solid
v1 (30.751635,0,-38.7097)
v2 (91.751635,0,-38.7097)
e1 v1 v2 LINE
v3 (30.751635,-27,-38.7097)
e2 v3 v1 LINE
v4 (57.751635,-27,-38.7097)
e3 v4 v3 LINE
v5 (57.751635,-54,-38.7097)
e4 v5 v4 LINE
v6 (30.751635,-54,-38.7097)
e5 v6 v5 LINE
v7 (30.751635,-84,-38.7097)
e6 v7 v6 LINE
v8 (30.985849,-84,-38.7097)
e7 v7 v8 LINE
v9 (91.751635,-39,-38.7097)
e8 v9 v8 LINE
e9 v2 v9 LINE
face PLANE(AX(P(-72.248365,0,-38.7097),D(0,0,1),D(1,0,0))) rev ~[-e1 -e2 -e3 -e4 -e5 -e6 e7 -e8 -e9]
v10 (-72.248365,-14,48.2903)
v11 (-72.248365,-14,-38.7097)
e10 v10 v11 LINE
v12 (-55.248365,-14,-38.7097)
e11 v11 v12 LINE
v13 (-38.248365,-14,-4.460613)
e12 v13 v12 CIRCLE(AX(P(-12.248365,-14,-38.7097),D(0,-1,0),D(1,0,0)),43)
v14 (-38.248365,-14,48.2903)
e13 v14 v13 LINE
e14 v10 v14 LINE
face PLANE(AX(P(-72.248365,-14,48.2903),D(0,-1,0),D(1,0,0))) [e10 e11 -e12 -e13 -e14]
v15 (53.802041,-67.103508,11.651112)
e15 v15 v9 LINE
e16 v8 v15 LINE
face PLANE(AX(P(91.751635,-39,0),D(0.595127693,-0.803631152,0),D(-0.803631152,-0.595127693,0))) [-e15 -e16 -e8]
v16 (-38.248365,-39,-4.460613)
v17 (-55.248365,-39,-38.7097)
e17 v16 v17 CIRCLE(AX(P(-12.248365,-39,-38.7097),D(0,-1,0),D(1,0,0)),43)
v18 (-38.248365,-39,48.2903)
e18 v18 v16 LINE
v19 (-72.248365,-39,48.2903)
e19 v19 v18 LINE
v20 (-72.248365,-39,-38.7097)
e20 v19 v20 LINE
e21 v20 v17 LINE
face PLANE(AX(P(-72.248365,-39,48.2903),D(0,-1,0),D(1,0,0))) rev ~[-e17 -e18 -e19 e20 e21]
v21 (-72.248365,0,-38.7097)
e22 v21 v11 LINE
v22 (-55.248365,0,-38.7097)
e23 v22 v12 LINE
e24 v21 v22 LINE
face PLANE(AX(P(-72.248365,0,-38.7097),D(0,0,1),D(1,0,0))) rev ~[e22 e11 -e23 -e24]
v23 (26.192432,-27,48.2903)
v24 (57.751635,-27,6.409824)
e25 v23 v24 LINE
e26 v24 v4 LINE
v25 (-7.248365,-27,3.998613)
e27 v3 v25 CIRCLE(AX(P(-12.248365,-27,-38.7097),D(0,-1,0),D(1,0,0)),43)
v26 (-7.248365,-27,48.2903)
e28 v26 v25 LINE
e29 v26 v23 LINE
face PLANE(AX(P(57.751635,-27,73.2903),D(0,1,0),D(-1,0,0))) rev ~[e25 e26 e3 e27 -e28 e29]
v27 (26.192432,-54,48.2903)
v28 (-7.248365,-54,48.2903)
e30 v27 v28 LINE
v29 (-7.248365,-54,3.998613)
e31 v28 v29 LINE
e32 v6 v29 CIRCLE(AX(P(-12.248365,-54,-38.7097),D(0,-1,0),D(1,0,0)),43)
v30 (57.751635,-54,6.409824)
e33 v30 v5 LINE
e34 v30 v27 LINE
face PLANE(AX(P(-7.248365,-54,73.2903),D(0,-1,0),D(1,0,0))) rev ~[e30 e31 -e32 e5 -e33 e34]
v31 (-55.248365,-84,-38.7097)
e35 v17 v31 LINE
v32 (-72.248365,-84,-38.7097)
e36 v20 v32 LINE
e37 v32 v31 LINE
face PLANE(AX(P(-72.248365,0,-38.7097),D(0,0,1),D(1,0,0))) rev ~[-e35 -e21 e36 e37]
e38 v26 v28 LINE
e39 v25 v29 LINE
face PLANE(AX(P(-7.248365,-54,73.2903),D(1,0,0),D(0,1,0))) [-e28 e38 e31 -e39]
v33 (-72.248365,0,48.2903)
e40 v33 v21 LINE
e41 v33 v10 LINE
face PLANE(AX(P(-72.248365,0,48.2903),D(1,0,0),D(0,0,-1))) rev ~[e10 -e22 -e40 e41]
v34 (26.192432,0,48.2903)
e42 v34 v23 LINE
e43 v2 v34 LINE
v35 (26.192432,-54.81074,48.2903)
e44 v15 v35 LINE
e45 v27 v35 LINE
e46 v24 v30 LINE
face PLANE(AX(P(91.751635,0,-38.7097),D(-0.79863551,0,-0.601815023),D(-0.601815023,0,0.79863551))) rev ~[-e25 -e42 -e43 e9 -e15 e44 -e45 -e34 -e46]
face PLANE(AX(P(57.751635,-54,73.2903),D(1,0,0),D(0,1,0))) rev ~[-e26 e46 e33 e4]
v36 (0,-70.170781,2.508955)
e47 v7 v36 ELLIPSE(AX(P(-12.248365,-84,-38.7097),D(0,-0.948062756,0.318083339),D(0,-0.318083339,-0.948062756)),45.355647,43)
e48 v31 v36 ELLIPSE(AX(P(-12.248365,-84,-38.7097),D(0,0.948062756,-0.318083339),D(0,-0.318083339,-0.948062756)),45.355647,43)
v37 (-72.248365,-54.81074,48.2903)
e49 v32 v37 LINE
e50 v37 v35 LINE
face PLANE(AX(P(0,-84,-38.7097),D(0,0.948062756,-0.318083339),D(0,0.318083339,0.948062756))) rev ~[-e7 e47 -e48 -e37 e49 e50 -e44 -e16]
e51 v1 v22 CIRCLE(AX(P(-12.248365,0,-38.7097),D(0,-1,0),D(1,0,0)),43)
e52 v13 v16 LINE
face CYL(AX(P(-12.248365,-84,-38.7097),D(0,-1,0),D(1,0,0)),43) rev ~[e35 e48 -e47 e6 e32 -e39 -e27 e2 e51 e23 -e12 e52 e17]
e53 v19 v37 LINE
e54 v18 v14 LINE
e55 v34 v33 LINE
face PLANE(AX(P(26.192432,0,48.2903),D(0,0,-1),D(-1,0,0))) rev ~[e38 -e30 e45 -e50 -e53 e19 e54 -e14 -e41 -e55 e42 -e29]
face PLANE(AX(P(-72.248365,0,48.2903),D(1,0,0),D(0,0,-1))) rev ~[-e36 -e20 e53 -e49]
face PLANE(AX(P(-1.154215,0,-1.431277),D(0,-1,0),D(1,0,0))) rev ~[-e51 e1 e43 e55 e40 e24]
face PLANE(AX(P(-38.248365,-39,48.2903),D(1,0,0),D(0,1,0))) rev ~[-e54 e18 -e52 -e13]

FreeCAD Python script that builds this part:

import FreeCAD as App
import Part
import Sketcher

V = App.Vector
Q = App.Units.Quantity

doc = App.newDocument("Part")
body = doc.addObject("PartDesign::Body", "Body")

# Sketch on XZ plane
sketch1 = body.newObject("Sketcher::SketchObject", "Sketch")
sketch1.AttachmentSupport = (doc.getObject("XZ_Plane"), [""])
sketch1.MapMode = "FlatFace"
sketch1.addGeometry(Part.LineSegment(V(26.192432, 48.2903, 0), V(-72.248365, 48.2903, 0)), False)
sketch1.addGeometry(Part.LineSegment(V(-72.248365, 48.2903, 0), V(-72.248365, -38.7097, 0)), False)
sketch1.addGeometry(Part.LineSegment(V(-72.248365, -38.7097, 0), V(91.751635, -38.7097, 0)), False)
sketch1.addGeometry(Part.LineSegment(V(91.751635, -38.7097, 0), V(26.192432, 48.2903, 0)), False)
sketch1.addConstraint(Sketcher.Constraint("Coincident", 0, 2, 1, 1))
sketch1.addConstraint(Sketcher.Constraint("Coincident", 1, 2, 2, 1))
sketch1.addConstraint(Sketcher.Constraint("Coincident", 2, 2, 3, 1))
sketch1.addConstraint(Sketcher.Constraint("Coincident", 3, 2, 0, 1))
sketch1.addConstraint(Sketcher.Constraint("Horizontal", 0))
sketch1.addConstraint(Sketcher.Constraint("Vertical", 1))
sketch1.addConstraint(Sketcher.Constraint("Horizontal", 2))
sketch1.addConstraint(Sketcher.Constraint("DistanceX", 2, 1, 2, 2, 164.0))
sketch1.addConstraint(Sketcher.Constraint("DistanceY", 1, 2, 1, 1, 87.0))
sketch1.addConstraint(Sketcher.Constraint("Angle", 3, Q("127 deg")))
sketch1.addConstraint(Sketcher.Constraint("DistanceY", -1, 1, 0, 2, 48.2903))
sketch1.addConstraint(Sketcher.Constraint("DistanceX", 0, 2, -1, 1, 72.248365))
pad1 = body.newObject("PartDesign::Pad", "Pad")
pad1.Profile = sketch1
pad1.Length = 84

# Sketch on XY plane
sketch2 = body.newObject("Sketcher::SketchObject", "Sketch001")
sketch2.AttachmentSupport = (doc.getObject("XY_Plane"), [""])
sketch2.MapMode = "FlatFace"
sketch2.AttachmentOffset = App.Placement(V(0, 0, 73.2903), App.Rotation())
sketch2.addGeometry(Part.LineSegment(V(-7.248365, -27, 0), V(-7.248365, -54, 0)), False)
sketch2.addGeometry(Part.LineSegment(V(-7.248365, -54, 0), V(57.751635, -54, 0)), False)
sketch2.addGeometry(Part.LineSegment(V(57.751635, -54, 0), V(57.751635, -27, 0)), False)
sketch2.addGeometry(Part.LineSegment(V(57.751635, -27, 0), V(-7.248365, -27, 0)), False)
sketch2.addConstraint(Sketcher.Constraint("Coincident", 0, 2, 1, 1))
sketch2.addConstraint(Sketcher.Constraint("Coincident", 1, 2, 2, 1))
sketch2.addConstraint(Sketcher.Constraint("Coincident", 2, 2, 3, 1))
sketch2.addConstraint(Sketcher.Constraint("Coincident", 3, 2, 0, 1))
sketch2.addConstraint(Sketcher.Constraint("Vertical", 0))
sketch2.addConstraint(Sketcher.Constraint("Horizontal", 1))
sketch2.addConstraint(Sketcher.Constraint("Vertical", 2))
sketch2.addConstraint(Sketcher.Constraint("Horizontal", 3))
sketch2.addConstraint(Sketcher.Constraint("DistanceX", 1, 1, 1, 2, 65.0))
sketch2.addConstraint(Sketcher.Constraint("DistanceY", 0, 2, 0, 1, 27.0))
sketch2.addConstraint(Sketcher.Constraint("DistanceY", 0, 2, -1, 1, 54.0))
sketch2.addConstraint(Sketcher.Constraint("DistanceX", 0, 2, -1, 1, 7.248365))
pocket1 = body.newObject("PartDesign::Pocket", "Pocket")
pocket1.Profile = sketch2
pocket1.Length = 184

# Sketch on XY plane
sketch3 = body.newObject("Sketcher::SketchObject", "Sketch002")
sketch3.AttachmentSupport = (doc.getObject("XY_Plane"), [""])
sketch3.MapMode = "FlatFace"
sketch3.AttachmentOffset = App.Placement(V(0, 0, 48.2903), App.Rotation())
sketch3.addGeometry(Part.LineSegment(V(-72.248365, -14, 0), V(-72.248365, -39, 0)), False)
sketch3.addGeometry(Part.LineSegment(V(-72.248365, -39, 0), V(-38.248365, -39, 0)), False)
sketch3.addGeometry(Part.LineSegment(V(-38.248365, -39, 0), V(-38.248365, -14, 0)), False)
sketch3.addGeometry(Part.LineSegment(V(-38.248365, -14, 0), V(-72.248365, -14, 0)), False)
sketch3.addConstraint(Sketcher.Constraint("Coincident", 0, 2, 1, 1))
sketch3.addConstraint(Sketcher.Constraint("Coincident", 1, 2, 2, 1))
sketch3.addConstraint(Sketcher.Constraint("Coincident", 2, 2, 3, 1))
sketch3.addConstraint(Sketcher.Constraint("Coincident", 3, 2, 0, 1))
sketch3.addConstraint(Sketcher.Constraint("Vertical", 0))
sketch3.addConstraint(Sketcher.Constraint("Horizontal", 1))
sketch3.addConstraint(Sketcher.Constraint("Vertical", 2))
sketch3.addConstraint(Sketcher.Constraint("Horizontal", 3))
sketch3.addConstraint(Sketcher.Constraint("DistanceX", 1, 1, 1, 2, 34.0))
sketch3.addConstraint(Sketcher.Constraint("DistanceY", 0, 2, 0, 1, 25.0))
sketch3.addConstraint(Sketcher.Constraint("DistanceY", 0, 2, -1, 1, 39.0))
sketch3.addConstraint(Sketcher.Constraint("DistanceX", 0, 2, -1, 1, 72.248365))
pocket2 = body.newObject("PartDesign::Pocket", "Pocket001")
pocket2.Profile = sketch3
pocket2.Length = 363

# Sketch on XZ plane
sketch4 = body.newObject("Sketcher::SketchObject", "Sketch003")
sketch4.AttachmentSupport = (doc.getObject("XZ_Plane"), [""])
sketch4.MapMode = "FlatFace"
sketch4.AttachmentOffset = App.Placement(V(0, 0, 84), App.Rotation())
sketch4.addGeometry(Part.Circle(V(-12.248365, -38.7097, 0), V(0, 0, 1), 43), False)
sketch4.addConstraint(Sketcher.Constraint("Diameter", 0, 86.0))
sketch4.addConstraint(Sketcher.Constraint("DistanceY", 0, 3, -1, 1, 38.7097))
sketch4.addConstraint(Sketcher.Constraint("DistanceX", 0, 3, -1, 1, 12.248365))
pocket3 = body.newObject("PartDesign::Pocket", "Pocket002")
pocket3.Profile = sketch4
pocket3.Length = 191

# Sketch on YZ plane
sketch5 = body.newObject("Sketcher::SketchObject", "Sketch004")
sketch5.AttachmentSupport = (doc.getObject("YZ_Plane"), [""])
sketch5.MapMode = "FlatFace"
sketch5.addGeometry(Part.LineSegment(V(-84, -38.7097, 0), V(-54.81074, 48.2903, 0)), False)
sketch5.addGeometry(Part.LineSegment(V(-54.81074, 48.2903, 0), V(-84, 48.2903, 0)), False)
sketch5.addGeometry(Part.LineSegment(V(-84, 48.2903, 0), V(-84, -38.7097, 0)), False)
sketch5.addConstraint(Sketcher.Constraint("Coincident", 0, 2, 1, 1))
sketch5.addConstraint(Sketcher.Constraint("Coincident", 1, 2, 2, 1))
sketch5.addConstraint(Sketcher.Constraint("Coincident", 2, 2, 0, 1))
sketch5.addConstraint(Sketcher.Constraint("Horizontal", 1))
sketch5.addConstraint(Sketcher.Constraint("Vertical", 2))
sketch5.addConstraint(Sketcher.Constraint("DistanceY", 2, 2, 2, 1, 87.0))
sketch5.addConstraint(Sketcher.Constraint("DistanceX", 1, 2, -1, 1, 84.0))
sketch5.addConstraint(Sketcher.Constraint("DistanceX", 1, 2, 1, 1, 29.18926))
sketch5.addConstraint(Sketcher.Constraint("DistanceY", -1, 1, 0, 2, 48.2903))
pocket4 = body.newObject("PartDesign::Pocket", "Pocket003")
pocket4.Profile = sketch5
pocket4.Type = "ThroughAll"
pocket4.Midplane = True

# Sketch on XY plane
sketch6 = body.newObject("Sketcher::SketchObject", "Sketch005")
sketch6.AttachmentSupport = (doc.getObject("XY_Plane"), [""])
sketch6.MapMode = "FlatFace"
sketch6.addGeometry(Part.LineSegment(V(91.751635, -84, 0), V(91.751635, -39, 0)), False)
sketch6.addGeometry(Part.LineSegment(V(91.751635, -39, 0), V(30.985849, -84, 0)), False)
sketch6.addGeometry(Part.LineSegment(V(30.985849, -84, 0), V(91.751635, -84, 0)), False)
sketch6.addConstraint(Sketcher.Constraint("Coincident", 0, 2, 1, 1))
sketch6.addConstraint(Sketcher.Constraint("Coincident", 1, 2, 2, 1))
sketch6.addConstraint(Sketcher.Constraint("Coincident", 2, 2, 0, 1))
sketch6.addConstraint(Sketcher.Constraint("Vertical", 0))
sketch6.addConstraint(Sketcher.Constraint("Horizontal", 2))
sketch6.addConstraint(Sketcher.Constraint("DistanceY", 0, 1, 0, 2, 45.0))
sketch6.addConstraint(Sketcher.Constraint("DistanceY", 0, 2, -1, 1, 39.0))
sketch6.addConstraint(Sketcher.Constraint("DistanceX", 2, 1, 2, 2, 60.765786))
sketch6.addConstraint(Sketcher.Constraint("DistanceX", -1, 1, 1, 2, 30.985849))
pocket5 = body.newObject("PartDesign::Pocket", "Pocket004")
pocket5.Profile = sketch6
pocket5.Type = "ThroughAll"
pocket5.Midplane = True

doc.recompute()
